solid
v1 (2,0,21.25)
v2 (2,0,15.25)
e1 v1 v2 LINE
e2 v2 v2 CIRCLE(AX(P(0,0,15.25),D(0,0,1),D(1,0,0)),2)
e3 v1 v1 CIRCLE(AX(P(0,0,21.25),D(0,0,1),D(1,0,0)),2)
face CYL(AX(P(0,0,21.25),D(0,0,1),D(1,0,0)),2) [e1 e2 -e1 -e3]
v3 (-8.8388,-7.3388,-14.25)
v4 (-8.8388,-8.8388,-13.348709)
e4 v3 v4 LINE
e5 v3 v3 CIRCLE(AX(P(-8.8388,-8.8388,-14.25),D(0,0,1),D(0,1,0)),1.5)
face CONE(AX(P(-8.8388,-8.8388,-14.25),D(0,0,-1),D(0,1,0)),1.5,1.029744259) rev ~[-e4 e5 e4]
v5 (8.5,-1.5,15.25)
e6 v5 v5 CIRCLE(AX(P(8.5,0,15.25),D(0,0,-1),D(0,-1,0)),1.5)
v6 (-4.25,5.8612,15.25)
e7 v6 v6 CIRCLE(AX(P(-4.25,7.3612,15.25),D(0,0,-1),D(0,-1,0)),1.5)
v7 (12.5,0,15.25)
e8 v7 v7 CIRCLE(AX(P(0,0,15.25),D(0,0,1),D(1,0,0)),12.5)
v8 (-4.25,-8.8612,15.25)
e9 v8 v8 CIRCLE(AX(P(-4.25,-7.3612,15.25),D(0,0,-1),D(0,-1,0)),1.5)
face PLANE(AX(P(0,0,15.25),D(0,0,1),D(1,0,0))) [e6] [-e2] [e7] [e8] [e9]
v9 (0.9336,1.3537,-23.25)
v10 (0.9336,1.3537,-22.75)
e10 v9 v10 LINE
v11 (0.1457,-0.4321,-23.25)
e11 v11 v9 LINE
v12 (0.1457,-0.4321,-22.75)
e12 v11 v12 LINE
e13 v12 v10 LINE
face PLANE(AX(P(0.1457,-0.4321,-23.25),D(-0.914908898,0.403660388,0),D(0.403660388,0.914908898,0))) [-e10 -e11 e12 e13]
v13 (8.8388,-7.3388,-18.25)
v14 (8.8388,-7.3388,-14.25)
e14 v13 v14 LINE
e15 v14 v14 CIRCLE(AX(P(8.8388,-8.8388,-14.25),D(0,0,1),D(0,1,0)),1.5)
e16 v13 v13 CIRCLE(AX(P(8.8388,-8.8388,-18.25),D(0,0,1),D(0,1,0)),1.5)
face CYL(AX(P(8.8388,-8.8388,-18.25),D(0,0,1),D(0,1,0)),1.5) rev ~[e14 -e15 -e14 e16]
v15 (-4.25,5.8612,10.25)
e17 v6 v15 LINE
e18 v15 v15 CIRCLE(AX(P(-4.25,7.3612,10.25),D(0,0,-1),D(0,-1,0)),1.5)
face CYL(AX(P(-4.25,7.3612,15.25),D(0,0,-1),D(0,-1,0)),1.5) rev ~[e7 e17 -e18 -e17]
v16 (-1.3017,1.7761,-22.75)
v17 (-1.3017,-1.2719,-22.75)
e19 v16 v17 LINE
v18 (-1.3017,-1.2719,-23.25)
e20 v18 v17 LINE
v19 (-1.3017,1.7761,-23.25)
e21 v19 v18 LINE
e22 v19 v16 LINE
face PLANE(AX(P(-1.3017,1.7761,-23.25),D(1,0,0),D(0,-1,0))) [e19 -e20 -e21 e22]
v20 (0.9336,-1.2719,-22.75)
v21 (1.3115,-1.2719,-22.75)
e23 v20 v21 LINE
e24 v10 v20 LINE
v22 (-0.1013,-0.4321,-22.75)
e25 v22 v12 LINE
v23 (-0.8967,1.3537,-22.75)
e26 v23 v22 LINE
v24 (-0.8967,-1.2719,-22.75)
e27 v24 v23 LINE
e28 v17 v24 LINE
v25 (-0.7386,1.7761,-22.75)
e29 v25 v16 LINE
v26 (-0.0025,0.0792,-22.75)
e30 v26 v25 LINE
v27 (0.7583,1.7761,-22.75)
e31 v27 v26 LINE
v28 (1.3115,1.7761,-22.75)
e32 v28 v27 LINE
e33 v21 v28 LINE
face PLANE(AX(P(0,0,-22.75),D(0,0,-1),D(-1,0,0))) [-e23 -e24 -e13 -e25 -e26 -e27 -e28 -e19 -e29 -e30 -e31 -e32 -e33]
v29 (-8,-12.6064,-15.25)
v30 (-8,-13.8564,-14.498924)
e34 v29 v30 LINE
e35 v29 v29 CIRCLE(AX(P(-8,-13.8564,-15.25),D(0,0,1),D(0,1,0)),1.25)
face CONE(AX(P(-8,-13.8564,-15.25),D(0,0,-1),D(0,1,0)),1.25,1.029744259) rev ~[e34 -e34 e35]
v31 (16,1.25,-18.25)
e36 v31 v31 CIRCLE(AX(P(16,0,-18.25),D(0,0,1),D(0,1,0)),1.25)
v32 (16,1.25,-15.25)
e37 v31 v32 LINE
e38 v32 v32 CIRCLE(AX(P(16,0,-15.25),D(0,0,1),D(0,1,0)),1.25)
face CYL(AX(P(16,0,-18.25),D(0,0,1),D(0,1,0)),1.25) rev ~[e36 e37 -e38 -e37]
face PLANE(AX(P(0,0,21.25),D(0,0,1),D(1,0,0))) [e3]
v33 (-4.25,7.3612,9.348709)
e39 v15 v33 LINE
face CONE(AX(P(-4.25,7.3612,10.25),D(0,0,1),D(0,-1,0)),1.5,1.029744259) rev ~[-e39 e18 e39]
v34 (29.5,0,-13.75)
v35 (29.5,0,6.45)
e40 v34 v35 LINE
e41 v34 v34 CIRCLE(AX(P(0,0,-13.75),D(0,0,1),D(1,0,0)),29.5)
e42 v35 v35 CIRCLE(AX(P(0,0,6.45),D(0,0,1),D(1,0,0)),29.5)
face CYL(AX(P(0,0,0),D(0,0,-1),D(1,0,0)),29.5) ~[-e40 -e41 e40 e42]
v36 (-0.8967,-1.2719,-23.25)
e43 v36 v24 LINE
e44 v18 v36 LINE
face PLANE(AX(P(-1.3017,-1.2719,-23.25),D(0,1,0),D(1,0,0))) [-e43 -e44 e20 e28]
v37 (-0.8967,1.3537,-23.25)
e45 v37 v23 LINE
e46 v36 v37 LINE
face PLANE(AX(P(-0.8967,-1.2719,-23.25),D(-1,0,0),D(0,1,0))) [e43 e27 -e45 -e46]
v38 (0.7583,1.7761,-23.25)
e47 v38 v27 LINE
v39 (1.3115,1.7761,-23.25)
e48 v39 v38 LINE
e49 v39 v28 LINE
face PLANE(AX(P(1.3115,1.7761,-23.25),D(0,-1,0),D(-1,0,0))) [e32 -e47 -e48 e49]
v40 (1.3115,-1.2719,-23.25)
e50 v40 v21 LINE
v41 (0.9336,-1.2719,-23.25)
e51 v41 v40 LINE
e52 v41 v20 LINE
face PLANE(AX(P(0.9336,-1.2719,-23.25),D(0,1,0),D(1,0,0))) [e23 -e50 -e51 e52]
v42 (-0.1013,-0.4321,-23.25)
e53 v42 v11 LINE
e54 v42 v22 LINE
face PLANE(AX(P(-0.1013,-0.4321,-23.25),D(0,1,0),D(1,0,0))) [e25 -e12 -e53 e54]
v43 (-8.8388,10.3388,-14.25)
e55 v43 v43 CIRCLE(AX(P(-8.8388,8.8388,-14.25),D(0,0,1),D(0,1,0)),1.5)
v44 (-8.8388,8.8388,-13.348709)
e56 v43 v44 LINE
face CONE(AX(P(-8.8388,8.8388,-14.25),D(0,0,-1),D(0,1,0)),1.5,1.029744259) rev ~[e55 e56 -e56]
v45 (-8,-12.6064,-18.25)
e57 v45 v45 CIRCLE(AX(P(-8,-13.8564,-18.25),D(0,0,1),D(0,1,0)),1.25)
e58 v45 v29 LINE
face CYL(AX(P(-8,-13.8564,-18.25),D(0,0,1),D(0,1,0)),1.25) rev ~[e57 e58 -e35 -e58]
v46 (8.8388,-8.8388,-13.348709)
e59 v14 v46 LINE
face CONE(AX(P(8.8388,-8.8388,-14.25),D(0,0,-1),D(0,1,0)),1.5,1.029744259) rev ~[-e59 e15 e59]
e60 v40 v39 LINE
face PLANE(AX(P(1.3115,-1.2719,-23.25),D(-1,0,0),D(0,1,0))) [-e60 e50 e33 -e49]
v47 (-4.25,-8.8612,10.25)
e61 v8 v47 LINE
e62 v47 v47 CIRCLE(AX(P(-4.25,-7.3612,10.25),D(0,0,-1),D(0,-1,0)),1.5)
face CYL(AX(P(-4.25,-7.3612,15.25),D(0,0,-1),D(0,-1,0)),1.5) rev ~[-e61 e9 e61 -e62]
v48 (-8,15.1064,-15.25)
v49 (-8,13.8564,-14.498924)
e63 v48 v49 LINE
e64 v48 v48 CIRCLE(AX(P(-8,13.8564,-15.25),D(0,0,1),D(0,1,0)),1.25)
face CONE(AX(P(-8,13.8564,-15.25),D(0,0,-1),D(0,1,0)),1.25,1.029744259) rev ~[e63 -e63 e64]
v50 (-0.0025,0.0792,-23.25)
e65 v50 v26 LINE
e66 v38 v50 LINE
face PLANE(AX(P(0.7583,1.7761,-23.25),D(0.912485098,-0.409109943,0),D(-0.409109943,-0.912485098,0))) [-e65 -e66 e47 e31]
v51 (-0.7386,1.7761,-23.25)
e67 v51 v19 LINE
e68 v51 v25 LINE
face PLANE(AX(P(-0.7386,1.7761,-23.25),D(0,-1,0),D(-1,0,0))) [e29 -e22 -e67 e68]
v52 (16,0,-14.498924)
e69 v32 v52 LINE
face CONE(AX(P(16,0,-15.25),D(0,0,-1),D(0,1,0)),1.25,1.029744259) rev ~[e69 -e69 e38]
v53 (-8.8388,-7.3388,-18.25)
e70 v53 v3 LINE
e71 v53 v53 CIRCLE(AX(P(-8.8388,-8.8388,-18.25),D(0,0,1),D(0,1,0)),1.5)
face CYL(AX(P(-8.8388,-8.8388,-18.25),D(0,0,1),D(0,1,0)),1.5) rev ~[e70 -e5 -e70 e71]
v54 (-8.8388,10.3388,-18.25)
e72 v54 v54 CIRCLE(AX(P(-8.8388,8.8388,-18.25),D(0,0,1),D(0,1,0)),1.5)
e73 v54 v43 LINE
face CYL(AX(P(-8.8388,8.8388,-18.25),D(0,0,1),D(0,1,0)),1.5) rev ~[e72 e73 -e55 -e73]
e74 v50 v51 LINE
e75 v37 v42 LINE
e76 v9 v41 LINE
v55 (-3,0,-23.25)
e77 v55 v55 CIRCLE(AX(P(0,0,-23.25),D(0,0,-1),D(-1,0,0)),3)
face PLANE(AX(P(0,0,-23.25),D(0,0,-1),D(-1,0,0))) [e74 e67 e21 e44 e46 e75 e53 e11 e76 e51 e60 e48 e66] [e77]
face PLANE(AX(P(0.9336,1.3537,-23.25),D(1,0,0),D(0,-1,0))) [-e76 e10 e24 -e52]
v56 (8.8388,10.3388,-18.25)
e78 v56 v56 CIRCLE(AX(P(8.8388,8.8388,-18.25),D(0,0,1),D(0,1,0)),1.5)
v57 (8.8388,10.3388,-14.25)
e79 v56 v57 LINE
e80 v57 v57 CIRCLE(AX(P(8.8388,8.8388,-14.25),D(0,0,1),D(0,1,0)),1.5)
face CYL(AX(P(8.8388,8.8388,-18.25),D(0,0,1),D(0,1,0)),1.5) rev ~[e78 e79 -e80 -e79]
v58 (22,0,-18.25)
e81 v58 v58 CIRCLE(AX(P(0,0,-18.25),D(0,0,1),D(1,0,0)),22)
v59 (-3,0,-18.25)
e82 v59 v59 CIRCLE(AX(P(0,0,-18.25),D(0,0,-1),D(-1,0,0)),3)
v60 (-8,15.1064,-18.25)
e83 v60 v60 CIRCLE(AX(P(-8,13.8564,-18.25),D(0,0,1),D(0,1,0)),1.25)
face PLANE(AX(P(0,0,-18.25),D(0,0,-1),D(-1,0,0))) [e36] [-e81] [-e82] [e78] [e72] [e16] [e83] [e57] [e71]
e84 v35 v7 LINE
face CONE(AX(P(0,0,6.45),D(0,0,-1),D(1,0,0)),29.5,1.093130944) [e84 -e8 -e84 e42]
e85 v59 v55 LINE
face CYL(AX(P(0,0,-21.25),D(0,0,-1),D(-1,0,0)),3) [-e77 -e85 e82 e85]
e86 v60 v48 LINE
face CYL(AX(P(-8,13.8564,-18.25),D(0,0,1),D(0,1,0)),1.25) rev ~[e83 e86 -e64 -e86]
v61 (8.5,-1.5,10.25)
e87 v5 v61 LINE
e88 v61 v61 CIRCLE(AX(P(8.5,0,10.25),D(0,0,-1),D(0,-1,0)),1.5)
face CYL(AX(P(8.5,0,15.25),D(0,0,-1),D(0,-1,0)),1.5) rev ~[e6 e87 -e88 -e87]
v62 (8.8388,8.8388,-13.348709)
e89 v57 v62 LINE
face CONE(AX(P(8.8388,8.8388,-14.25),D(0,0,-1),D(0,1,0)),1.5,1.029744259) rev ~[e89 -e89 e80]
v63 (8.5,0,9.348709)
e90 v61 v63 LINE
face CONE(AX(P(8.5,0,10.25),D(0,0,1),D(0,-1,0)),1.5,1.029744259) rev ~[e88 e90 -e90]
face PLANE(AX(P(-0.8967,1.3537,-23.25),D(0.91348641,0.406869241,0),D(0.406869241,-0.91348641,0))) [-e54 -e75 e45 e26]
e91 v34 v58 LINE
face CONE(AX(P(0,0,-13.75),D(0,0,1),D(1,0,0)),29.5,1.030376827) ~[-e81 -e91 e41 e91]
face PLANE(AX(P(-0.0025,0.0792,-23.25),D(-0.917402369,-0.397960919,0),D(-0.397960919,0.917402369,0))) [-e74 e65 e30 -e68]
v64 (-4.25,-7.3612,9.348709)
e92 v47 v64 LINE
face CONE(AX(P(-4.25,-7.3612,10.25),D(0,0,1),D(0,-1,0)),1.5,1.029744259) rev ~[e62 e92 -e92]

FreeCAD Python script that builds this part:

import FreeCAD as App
import Part
import Sketcher
Q = App.Units.Quantity


def edges_at(feature, points):
    """Names of the edges that pass closest to the given points."""
    edges = feature.Shape.Edges
    near = lambda p: min(range(len(edges)), key=lambda i: edges[i].distToShape(Part.Vertex(*p))[0])
    return sorted({f"Edge{near(p) + 1}" for p in points})

doc = App.newDocument("Part")
body = doc.addObject("PartDesign::Body", "Body")

# Sketch on XY plane
sketch1 = body.newObject("Sketcher::SketchObject", "Sketch")
sketch1.AttachmentSupport = (doc.getObject("XY_Plane"), [""])
sketch1.MapMode = "FlatFace"
sketch1.addGeometry(Part.Circle(App.Vector(0, 0, 0), App.Vector(0, 0, 1), 30), False)
sketch1.addConstraint([
    Sketcher.Constraint("Coincident", 0, 3, -1, 1),
    Sketcher.Constraint("Diameter", 0, Q("59 mm")),
])
pad1 = body.newObject("PartDesign::Pad", "Pad")
pad1.Profile = sketch1
pad1.Length = 42.5
pad1.Midplane = True

# Sketch on XY plane
sketch2 = body.newObject("Sketcher::SketchObject", "Sketch001")
sketch2.AttachmentSupport = (doc.getObject("XY_Plane"), [""])
sketch2.MapMode = "FlatFace"
sketch2.AttachmentOffset = App.Placement(App.Vector(0, 0, 21.25), App.Rotation())
sketch2.addGeometry([
    Part.Circle(App.Vector(0, 0, 0), App.Vector(0, 0, 1), 29.5),
    Part.Circle(App.Vector(0, 0, 0), App.Vector(0, 0, 1), 2),
], False)
sketch2.addConstraint([
    Sketcher.Constraint("Coincident", 0, 3, -1, 1),
    Sketcher.Constraint("Coincident", 1, 3, -1, 1),
    Sketcher.Constraint("Diameter", 0, Q("59 mm")),
    Sketcher.Constraint("Diameter", 1, Q("4 mm")),
])
pocket1 = body.newObject("PartDesign::Pocket", "Pocket")
pocket1.Profile = sketch2
pocket1.Length = 6

# Sketch on XY plane
sketch3 = body.newObject("Sketcher::SketchObject", "Sketch002")
sketch3.AttachmentSupport = (doc.getObject("XY_Plane"), [""])
sketch3.MapMode = "FlatFace"
sketch3.AttachmentOffset = App.Placement(App.Vector(0, 0, -21.25), App.Rotation())
sketch3.addGeometry([
    Part.Circle(App.Vector(0, 0, 0), App.Vector(0, 0, 1), 29.5),
    Part.Circle(App.Vector(0, 0, 0), App.Vector(0, 0, 1), 3),
], False)
sketch3.addConstraint([
    Sketcher.Constraint("Coincident", 0, 3, -1, 1),
    Sketcher.Constraint("Coincident", 1, 3, -1, 1),
    Sketcher.Constraint("Diameter", 0, Q("59 mm")),
    Sketcher.Constraint("Diameter", 1, Q("6 mm")),
])
pocket2 = body.newObject("PartDesign::Pocket", "Pocket001")
pocket2.Profile = sketch3
pocket2.Length = 3
pocket2.Reversed = True

# Sketch on XY plane
sketch4 = body.newObject("Sketcher::SketchObject", "Sketch003")
sketch4.AttachmentSupport = (doc.getObject("XY_Plane"), [""])
sketch4.MapMode = "FlatFace"
sketch4.AttachmentOffset = App.Placement(App.Vector(0, 0, 15.25), App.Rotation())
sketch4.addGeometry([
    Part.Circle(App.Vector(-4.2, 7.4, 0), App.Vector(0, 0, 1), 1.5),
    Part.Circle(App.Vector(8.5, 0, 0), App.Vector(0, 0, 1), 1.5),
    Part.Circle(App.Vector(-4.2, -7.4, 0), App.Vector(0, 0, 1), 1.5),
], False)
sketch4.addConstraint([
    Sketcher.Constraint("Equal", 0, 1),
    Sketcher.Constraint("Equal", 1, 2),
    Sketcher.Constraint("Symmetric", 0, 3, 2, 3, -1),
    Sketcher.Constraint("PointOnObject", 1, 3, -1),
    Sketcher.Constraint("Diameter", 0, Q("3 mm")),
    Sketcher.Constraint("DistanceX", -1, 1, 1, 3, Q("8.5 mm")),
    Sketcher.Constraint("DistanceX", 0, 3, -1, 1, Q("4.25 mm")),
    Sketcher.Constraint("DistanceY", -1, 1, 0, 3, Q("7.3612 mm")),
])
doc.recompute()
hole = body.newObject("PartDesign::Hole", "Hole")
hole.Profile = sketch4
hole.ThreadType = "None"
hole.Diameter = 3
hole.DepthType = "Dimension"
hole.Depth = 5
hole.DrillPoint = "Angled"
hole.DrillPointAngle = 118
doc.recompute()

chamfer = body.newObject("PartDesign::Chamfer", "Chamfer")
chamfer.Base = (hole, edges_at(hole, [(-29.5, 0, 15.25)]))
chamfer.ChamferType = "Two distances"
chamfer.Size = 8.8
chamfer.Size2 = 17

# Sketch on XY plane
sketch5 = body.newObject("Sketcher::SketchObject", "Sketch004")
sketch5.AttachmentSupport = (doc.getObject("XY_Plane"), [""])
sketch5.MapMode = "FlatFace"
sketch5.AttachmentOffset = App.Placement(App.Vector(0, 0, -21.25), App.Rotation())
sketch5.addGeometry(Part.Circle(App.Vector(0, 0, 0), App.Vector(0, 0, 1), 3), False)
sketch5.addConstraint([
    Sketcher.Constraint("Coincident", 0, 3, -1, 1),
    Sketcher.Constraint("Diameter", 0, Q("6 mm")),
])
pad2 = body.newObject("PartDesign::Pad", "Pad001")
pad2.Profile = sketch5
pad2.Length = 2
pad2.Reversed = True
doc.recompute()

chamfer2 = body.newObject("PartDesign::Chamfer", "Chamfer001")
chamfer2.Base = (pad2, edges_at(pad2, [(-29.5, 0, -18.25)]))
chamfer2.ChamferType = "Two distances"
chamfer2.Size = 4.5
chamfer2.Size2 = 7.5

# Sketch on XY plane
sketch6 = body.newObject("Sketcher::SketchObject", "Sketch005")
sketch6.AttachmentSupport = (doc.getObject("XY_Plane"), [""])
sketch6.MapMode = "FlatFace"
sketch6.AttachmentOffset = App.Placement(App.Vector(0, 0, -18.25), App.Rotation())
sketch6.addGeometry([
    Part.Circle(App.Vector(8.8, 8.8, 0), App.Vector(0, 0, 1), 1.5),
    Part.Circle(App.Vector(-8.8, 8.8, 0), App.Vector(0, 0, 1), 1.5),
    Part.Circle(App.Vector(-8.8, -8.8, 0), App.Vector(0, 0, 1), 1.5),
    Part.Circle(App.Vector(8.8, -8.8, 0), App.Vector(0, 0, 1), 1.5),
], False)
sketch6.addConstraint([
    Sketcher.Constraint("Equal", 0, 1),
    Sketcher.Constraint("Equal", 1, 2),
    Sketcher.Constraint("Equal", 2, 3),
    Sketcher.Constraint("Symmetric", 0, 3, 2, 3, -1, 1),
    Sketcher.Constraint("Symmetric", 1, 3, 3, 3, -1, 1),
    Sketcher.Constraint("Symmetric", 0, 3, 1, 3, -2),
    Sketcher.Constraint("Diameter", 0, Q("3 mm")),
    Sketcher.Constraint("DistanceX", -1, 1, 0, 3, Q("8.8388 mm")),
    Sketcher.Constraint("DistanceY", -1, 1, 0, 3, Q("8.8388 mm")),
])
doc.recompute()
hole2 = body.newObject("PartDesign::Hole", "Hole001")
hole2.Profile = sketch6
hole2.ThreadType = "None"
hole2.Diameter = 3
hole2.DepthType = "Dimension"
hole2.Depth = 4
hole2.DrillPoint = "Angled"
hole2.DrillPointAngle = 118
hole2.Reversed = True

# Sketch on XY plane
sketch7 = body.newObject("Sketcher::SketchObject", "Sketch006")
sketch7.AttachmentSupport = (doc.getObject("XY_Plane"), [""])
sketch7.MapMode = "FlatFace"
sketch7.AttachmentOffset = App.Placement(App.Vector(0, 0, -18.25), App.Rotation())
sketch7.addGeometry([
    Part.Circle(App.Vector(-8, 13.9, 0), App.Vector(0, 0, 1), 1.2),
    Part.Circle(App.Vector(16, 0, 0), App.Vector(0, 0, 1), 1.2),
    Part.Circle(App.Vector(-8, -13.9, 0), App.Vector(0, 0, 1), 1.2),
], False)
sketch7.addConstraint([
    Sketcher.Constraint("Equal", 0, 1),
    Sketcher.Constraint("Equal", 1, 2),
    Sketcher.Constraint("Symmetric", 0, 3, 2, 3, -1),
    Sketcher.Constraint("PointOnObject", 1, 3, -1),
    Sketcher.Constraint("Diameter", 0, Q("2.5 mm")),
    Sketcher.Constraint("DistanceX", 0, 3, -1, 1, Q("8 mm")),
    Sketcher.Constraint("DistanceX", -1, 1, 1, 3, Q("16 mm")),
    Sketcher.Constraint("DistanceY", -1, 1, 0, 3, Q("13.8564 mm")),
])
doc.recompute()
hole3 = body.newObject("PartDesign::Hole", "Hole002")
hole3.Profile = sketch7
hole3.ThreadType = "None"
hole3.Diameter = 2.5
hole3.DepthType = "Dimension"
hole3.Depth = 3
hole3.DrillPoint = "Angled"
hole3.DrillPointAngle = 118
hole3.Reversed = True

# Sketch on XY plane
sketch8 = body.newObject("Sketcher::SketchObject", "Sketch007")
sketch8.AttachmentSupport = (doc.getObject("XY_Plane"), [""])
sketch8.MapMode = "FlatFace"
sketch8.AttachmentOffset = App.Placement(App.Vector(0, 0, -23.25), App.Rotation())
sketch8.addGeometry([
    Part.LineSegment(App.Vector(-0.9, -1.27, 0), App.Vector(-1.3, -1.27, 0)),  # 0
    Part.LineSegment(App.Vector(-1.3, -1.27, 0), App.Vector(-1.3, 1.78, 0)),  # 1
    Part.LineSegment(App.Vector(-1.3, 1.78, 0), App.Vector(-0.74, 1.78, 0)),  # 2
    Part.LineSegment(App.Vector(-0.74, 1.78, 0), App.Vector(0, 0.08, 0)),  # 3
    Part.LineSegment(App.Vector(0, 0.08, 0), App.Vector(0.76, 1.78, 0)),  # 4
    Part.LineSegment(App.Vector(0.76, 1.78, 0), App.Vector(1.31, 1.78, 0)),  # 5
    Part.LineSegment(App.Vector(1.31, 1.78, 0), App.Vector(1.31, -1.27, 0)),  # 6
    Part.LineSegment(App.Vector(1.31, -1.27, 0), App.Vector(0.93, -1.27, 0)),  # 7
    Part.LineSegment(App.Vector(0.93, -1.27, 0), App.Vector(0.93, 1.35, 0)),  # 8
    Part.LineSegment(App.Vector(0.93, 1.35, 0), App.Vector(0.15, -0.43, 0)),  # 9
    Part.LineSegment(App.Vector(0.15, -0.43, 0), App.Vector(-0.1, -0.43, 0)),  # 10
    Part.LineSegment(App.Vector(-0.1, -0.43, 0), App.Vector(-0.9, 1.35, 0)),  # 11
    Part.LineSegment(App.Vector(-0.9, 1.35, 0), App.Vector(-0.9, -1.27, 0)),  # 12
], False)
sketch8.addConstraint([
    Sketcher.Constraint("Coincident", 0, 2, 1, 1),
    Sketcher.Constraint("Coincident", 1, 2, 2, 1),
    Sketcher.Constraint("Coincident", 2, 2, 3, 1),
    Sketcher.Constraint("Coincident", 3, 2, 4, 1),
    Sketcher.Constraint("Coincident", 4, 2, 5, 1),
    Sketcher.Constraint("Coincident", 5, 2, 6, 1),
    Sketcher.Constraint("Coincident", 6, 2, 7, 1),
    Sketcher.Constraint("Coincident", 7, 2, 8, 1),
    Sketcher.Constraint("Coincident", 8, 2, 9, 1),
    Sketcher.Constraint("Coincident", 9, 2, 10, 1),
    Sketcher.Constraint("Coincident", 10, 2, 11, 1),
    Sketcher.Constraint("Coincident", 11, 2, 12, 1),
    Sketcher.Constraint("Coincident", 12, 2, 0, 1),
    Sketcher.Constraint("Horizontal", 0),
    Sketcher.Constraint("Vertical", 1),
    Sketcher.Constraint("Horizontal", 2),
    Sketcher.Constraint("Horizontal", 5),
    Sketcher.Constraint("Vertical", 6),
    Sketcher.Constraint("Horizontal", 7),
    Sketcher.Constraint("Vertical", 8),
    Sketcher.Constraint("Horizontal", 10),
    Sketcher.Constraint("Vertical", 12),
    Sketcher.Constraint("Horizontal", 2, 2, 4, 2),
    Sketcher.Constraint("Horizontal", 0, 2, 6, 2),
    Sketcher.Constraint("Horizontal", 8, 2, 11, 2),
    Sketcher.Constraint("Angle", 3, Q("-66.5492 deg")),
    Sketcher.Constraint("Angle", 4, Q("65.851 deg")),
    Sketcher.Constraint("DistanceX", 0, 2, 0, 1, Q("0.405 mm")),
    Sketcher.Constraint("DistanceX", 2, 1, 2, 2, Q("0.563 mm")),
    Sketcher.Constraint("DistanceX", 7, 2, 7, 1, Q("0.378 mm")),
    Sketcher.Constraint("DistanceX", 10, 2, 10, 1, Q("0.247 mm")),
    Sketcher.Constraint("DistanceY", 1, 1, 1, 2, Q("3.048 mm")),
    Sketcher.Constraint("DistanceX", 1, 2, 4, 2, Q("2.06 mm")),
    Sketcher.Constraint("DistanceX", 2, 2, 5, 2, Q("2.05 mm")),
    Sketcher.Constraint("Distance", 9, Q("1.952 mm")),
    Sketcher.Constraint("Distance", 11, Q("1.955 mm")),
    Sketcher.Constraint("DistanceY", 8, 1, 8, 2, Q("2.6256 mm")),
    Sketcher.Constraint("DistanceY", 0, 2, -1, 1, Q("1.272 mm")),
    Sketcher.Constraint("DistanceX", 0, 2, -1, 1, Q("1.3017 mm")),
])
pocket3 = body.newObject("PartDesign::Pocket", "Pocket002")
pocket3.Profile = sketch8
pocket3.Length = 0.5
pocket3.Reversed = True

doc.recompute()
